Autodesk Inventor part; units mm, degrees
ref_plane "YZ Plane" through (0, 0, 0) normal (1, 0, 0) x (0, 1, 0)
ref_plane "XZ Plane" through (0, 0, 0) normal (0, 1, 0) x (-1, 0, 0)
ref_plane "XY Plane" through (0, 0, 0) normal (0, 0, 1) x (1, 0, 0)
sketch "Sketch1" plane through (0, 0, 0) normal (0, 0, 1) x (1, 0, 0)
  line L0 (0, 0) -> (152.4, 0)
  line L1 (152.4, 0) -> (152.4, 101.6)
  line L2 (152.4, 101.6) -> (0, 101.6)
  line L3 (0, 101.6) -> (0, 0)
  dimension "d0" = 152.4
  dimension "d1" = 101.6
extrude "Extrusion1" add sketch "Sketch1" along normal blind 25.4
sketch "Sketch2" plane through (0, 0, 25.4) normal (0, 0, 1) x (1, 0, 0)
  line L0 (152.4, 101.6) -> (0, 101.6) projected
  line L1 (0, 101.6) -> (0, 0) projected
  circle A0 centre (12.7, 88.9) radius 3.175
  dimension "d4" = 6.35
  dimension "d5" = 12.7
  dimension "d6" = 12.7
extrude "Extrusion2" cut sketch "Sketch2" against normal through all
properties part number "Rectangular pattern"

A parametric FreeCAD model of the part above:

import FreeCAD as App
import Part
import Sketcher
Q = App.Units.Quantity


def add_polygon(sketch, points):
    """Adds a closed chain of lines whose ends are joined by coincident constraints."""
    first, n = sketch.GeometryCount, len(points)
    for a, b in zip(points, points[1:] + points[:1]):
        sketch.addGeometry(Part.LineSegment(App.Vector(*a, 0), App.Vector(*b, 0)), False)
    for i in range(n):
        sketch.addConstraint(Sketcher.Constraint("Coincident", first + i, 2, first + (i + 1) % n, 1))

doc = App.newDocument("Part")
body = doc.addObject("PartDesign::Body", "Body")

# Sketch on XY plane
sketch1 = doc.addObject("Sketcher::SketchObject", "Sketch")
body.addObject(sketch1)
sketch1.AttachmentSupport = (doc.XY_Plane, [""])
sketch1.MapMode = "FlatFace"
add_polygon(sketch1, [(0, 102), (0, 0), (152, 0), (152, 102)])  # lines 0-3
sketch1.addConstraint([
    Sketcher.Constraint("Vertical", 0),
    Sketcher.Constraint("Horizontal", 1),
    Sketcher.Constraint("Vertical", 2),
    Sketcher.Constraint("Horizontal", 3),
    Sketcher.Constraint("Coincident", 0, 2, -1, 1),
    Sketcher.Constraint("DistanceX", 1, 1, 1, 2, Q("6 in")),
    Sketcher.Constraint("DistanceY", 0, 2, 0, 1, Q("4 in")),
])
pad1 = doc.addObject("PartDesign::Pad", "Pad")
body.addObject(pad1)
pad1.Profile = sketch1
pad1.Length = Q("1 in")

# Sketch on XY plane
sketch2 = doc.addObject("Sketcher::SketchObject", "Sketch001")
body.addObject(sketch2)
sketch2.AttachmentSupport = (doc.XY_Plane, [""])
sketch2.MapMode = "FlatFace"
sketch2.AttachmentOffset = App.Placement(App.Vector(0, 0, 1 * 25.4), App.Rotation())
sketch2.addGeometry(Part.Circle(App.Vector(12.7, 88.9, 0), App.Vector(0, 0, 1), 3.2), False)
sketch2.addConstraint([
    Sketcher.Constraint("Diameter", 0, Q("0.25 in")),
    Sketcher.Constraint("DistanceX", -1, 1, 0, 3, Q("0.5 in")),
    Sketcher.Constraint("DistanceY", -1, 1, 0, 3, Q("3.5 in")),
])
pocket1 = doc.addObject("PartDesign::Pocket", "Pocket")
body.addObject(pocket1)
pocket1.Profile = sketch2
pocket1.Type = "ThroughAll"

doc.recompute()
